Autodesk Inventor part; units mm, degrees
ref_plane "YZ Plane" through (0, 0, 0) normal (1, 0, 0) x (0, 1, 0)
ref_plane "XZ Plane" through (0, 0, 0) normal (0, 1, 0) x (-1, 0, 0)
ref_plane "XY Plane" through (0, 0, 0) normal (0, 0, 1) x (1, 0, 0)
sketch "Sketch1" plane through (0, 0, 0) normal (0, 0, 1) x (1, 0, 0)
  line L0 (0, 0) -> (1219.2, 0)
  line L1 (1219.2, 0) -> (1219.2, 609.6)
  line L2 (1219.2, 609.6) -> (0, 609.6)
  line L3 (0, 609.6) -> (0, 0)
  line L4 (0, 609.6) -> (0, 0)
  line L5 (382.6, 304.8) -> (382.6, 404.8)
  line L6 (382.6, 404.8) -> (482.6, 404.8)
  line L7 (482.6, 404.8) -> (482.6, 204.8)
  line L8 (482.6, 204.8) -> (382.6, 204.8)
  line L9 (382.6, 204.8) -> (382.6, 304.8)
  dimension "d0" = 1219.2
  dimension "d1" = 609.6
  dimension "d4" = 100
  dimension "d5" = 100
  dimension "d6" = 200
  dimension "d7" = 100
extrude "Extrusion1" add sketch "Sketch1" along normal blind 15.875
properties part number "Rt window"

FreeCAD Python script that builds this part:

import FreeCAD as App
import Part
import Sketcher
Q = App.Units.Quantity

doc = App.newDocument("Part")
body = doc.addObject("PartDesign::Body", "Body")

sketch1 = doc.addObject("Sketcher::SketchObject", "Sketch")
body.addObject(sketch1)
sketch1.AttachmentSupport = (doc.XY_Plane, [""])
sketch1.MapMode = "FlatFace"
sketch1.addGeometry(Part.LineSegment(App.Vector(0, 610, 0), App.Vector(0, 0, 0)), False)
sketch1.addGeometry(Part.LineSegment(App.Vector(0, 0, 0), App.Vector(1219, 0, 0)), False)
sketch1.addGeometry(Part.LineSegment(App.Vector(1219, 0, 0), App.Vector(1219, 610, 0)), False)
sketch1.addGeometry(Part.LineSegment(App.Vector(1219, 610, 0), App.Vector(0, 610, 0)), False)
sketch1.addGeometry(Part.LineSegment(App.Vector(383, 205, 0), App.Vector(383, 405, 0)), False)
sketch1.addGeometry(Part.LineSegment(App.Vector(383, 405, 0), App.Vector(483, 405, 0)), False)
sketch1.addGeometry(Part.LineSegment(App.Vector(483, 405, 0), App.Vector(483, 205, 0)), False)
sketch1.addGeometry(Part.LineSegment(App.Vector(483, 205, 0), App.Vector(383, 205, 0)), False)
sketch1.addConstraint(Sketcher.Constraint("Coincident", 0, 2, 1, 1))
sketch1.addConstraint(Sketcher.Constraint("Coincident", 1, 2, 2, 1))
sketch1.addConstraint(Sketcher.Constraint("Coincident", 2, 2, 3, 1))
sketch1.addConstraint(Sketcher.Constraint("Coincident", 3, 2, 0, 1))
sketch1.addConstraint(Sketcher.Constraint("Coincident", 4, 2, 5, 1))
sketch1.addConstraint(Sketcher.Constraint("Coincident", 5, 2, 6, 1))
sketch1.addConstraint(Sketcher.Constraint("Coincident", 6, 2, 7, 1))
sketch1.addConstraint(Sketcher.Constraint("Coincident", 7, 2, 4, 1))
sketch1.addConstraint(Sketcher.Constraint("Vertical", 0))
sketch1.addConstraint(Sketcher.Constraint("Horizontal", 1))
sketch1.addConstraint(Sketcher.Constraint("Vertical", 2))
sketch1.addConstraint(Sketcher.Constraint("Horizontal", 3))
sketch1.addConstraint(Sketcher.Constraint("Vertical", 4))
sketch1.addConstraint(Sketcher.Constraint("Horizontal", 5))
sketch1.addConstraint(Sketcher.Constraint("Vertical", 6))
sketch1.addConstraint(Sketcher.Constraint("Horizontal", 7))
sketch1.addConstraint(Sketcher.Constraint("Coincident", 0, 2, -1, 1))
sketch1.addConstraint(Sketcher.Constraint("DistanceX", 1, 1, 1, 2, Q("48 in")))
sketch1.addConstraint(Sketcher.Constraint("DistanceY", 0, 2, 0, 1, Q("24 in")))
sketch1.addConstraint(Sketcher.Constraint("DistanceX", 5, 1, 5, 2, Q("3.937 in")))
sketch1.addConstraint(Sketcher.Constraint("DistanceX", -1, 1, 5, 2, Q("19 in")))
sketch1.addConstraint(Sketcher.Constraint("DistanceY", 4, 1, 4, 2, 200.0))
sketch1.addConstraint(Sketcher.Constraint("DistanceY", -1, 1, 4, 2, Q("15.937 in")))
pad1 = doc.addObject("PartDesign::Pad", "Pad")
body.addObject(pad1)
pad1.Profile = sketch1
pad1.Length = Q("0.625 in")

doc.recompute()
